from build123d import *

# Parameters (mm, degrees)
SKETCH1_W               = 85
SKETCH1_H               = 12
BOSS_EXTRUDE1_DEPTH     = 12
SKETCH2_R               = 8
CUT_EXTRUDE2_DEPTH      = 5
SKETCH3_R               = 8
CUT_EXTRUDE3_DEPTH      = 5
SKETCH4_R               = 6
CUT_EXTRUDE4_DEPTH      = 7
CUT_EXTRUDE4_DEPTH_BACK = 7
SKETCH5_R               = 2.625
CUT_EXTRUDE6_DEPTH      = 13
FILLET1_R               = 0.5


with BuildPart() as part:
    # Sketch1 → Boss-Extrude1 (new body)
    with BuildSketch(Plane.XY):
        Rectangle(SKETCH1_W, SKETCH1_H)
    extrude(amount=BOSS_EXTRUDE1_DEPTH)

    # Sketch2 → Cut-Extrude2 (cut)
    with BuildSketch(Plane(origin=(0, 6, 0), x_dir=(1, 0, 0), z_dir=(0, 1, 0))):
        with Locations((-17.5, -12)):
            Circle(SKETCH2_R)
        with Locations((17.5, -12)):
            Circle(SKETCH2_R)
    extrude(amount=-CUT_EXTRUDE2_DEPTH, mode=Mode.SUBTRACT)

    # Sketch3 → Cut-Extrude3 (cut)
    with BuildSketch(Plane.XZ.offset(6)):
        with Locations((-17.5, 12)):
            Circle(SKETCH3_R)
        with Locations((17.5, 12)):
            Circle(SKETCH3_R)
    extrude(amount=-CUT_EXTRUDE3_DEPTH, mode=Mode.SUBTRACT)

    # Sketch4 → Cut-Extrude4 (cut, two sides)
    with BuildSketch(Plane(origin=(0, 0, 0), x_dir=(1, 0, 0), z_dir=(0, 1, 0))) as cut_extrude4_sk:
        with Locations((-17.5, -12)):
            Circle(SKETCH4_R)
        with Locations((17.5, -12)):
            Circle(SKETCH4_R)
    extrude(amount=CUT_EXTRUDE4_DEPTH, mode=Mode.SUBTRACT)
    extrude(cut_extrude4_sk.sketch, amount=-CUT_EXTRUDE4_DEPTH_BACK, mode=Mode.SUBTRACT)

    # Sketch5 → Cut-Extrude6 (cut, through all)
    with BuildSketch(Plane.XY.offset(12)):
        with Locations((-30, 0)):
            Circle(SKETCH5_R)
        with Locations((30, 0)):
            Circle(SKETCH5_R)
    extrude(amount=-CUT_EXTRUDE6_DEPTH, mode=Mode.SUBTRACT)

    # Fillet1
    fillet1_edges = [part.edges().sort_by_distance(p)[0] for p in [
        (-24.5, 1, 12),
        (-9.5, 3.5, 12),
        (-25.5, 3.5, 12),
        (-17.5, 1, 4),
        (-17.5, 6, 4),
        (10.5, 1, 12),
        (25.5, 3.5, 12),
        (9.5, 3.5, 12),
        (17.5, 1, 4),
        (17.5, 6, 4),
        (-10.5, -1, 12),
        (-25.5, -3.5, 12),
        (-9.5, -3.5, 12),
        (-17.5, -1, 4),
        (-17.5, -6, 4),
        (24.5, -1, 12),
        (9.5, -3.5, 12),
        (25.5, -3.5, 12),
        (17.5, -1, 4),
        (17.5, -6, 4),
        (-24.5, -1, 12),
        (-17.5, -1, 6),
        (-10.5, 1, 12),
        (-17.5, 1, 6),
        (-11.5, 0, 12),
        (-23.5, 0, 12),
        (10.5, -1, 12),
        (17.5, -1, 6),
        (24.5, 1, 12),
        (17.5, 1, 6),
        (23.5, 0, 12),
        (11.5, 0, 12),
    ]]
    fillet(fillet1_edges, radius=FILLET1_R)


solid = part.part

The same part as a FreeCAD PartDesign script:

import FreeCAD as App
import Part
import Sketcher

V = App.Vector


def edges_at(feature, points):
    """Names of the edges that pass closest to the given points."""
    edges = feature.Shape.Edges
    near = lambda p: min(range(len(edges)), key=lambda i: edges[i].distToShape(Part.Vertex(*p))[0])
    return sorted({f"Edge{near(p) + 1}" for p in points})


def add_polygon(sketch, points):
    """Adds a closed chain of lines whose ends are joined by coincident constraints."""
    first, n = sketch.GeometryCount, len(points)
    for a, b in zip(points, points[1:] + points[:1]):
        sketch.addGeometry(Part.LineSegment(App.Vector(*a, 0), App.Vector(*b, 0)), False)
    for i in range(n):
        sketch.addConstraint(Sketcher.Constraint("Coincident", first + i, 2, first + (i + 1) % n, 1))

doc = App.newDocument("Part")
body = doc.addObject("PartDesign::Body", "Body")

# Sketch on XY plane
sketch1 = body.newObject("Sketcher::SketchObject", "Sketch")
sketch1.AttachmentSupport = (doc.getObject("XY_Plane"), [""])
sketch1.MapMode = "FlatFace"
add_polygon(sketch1, [(-42.5, 6), (-42.5, -6), (42.5, -6), (42.5, 6)])  # lines 0-3
sketch1.addConstraint(Sketcher.Constraint("Vertical", 0))
sketch1.addConstraint(Sketcher.Constraint("Horizontal", 1))
sketch1.addConstraint(Sketcher.Constraint("Vertical", 2))
sketch1.addConstraint(Sketcher.Constraint("Horizontal", 3))
sketch1.addConstraint(Sketcher.Constraint("Symmetric", 0, 2, 2, 2, -1, 1))
sketch1.addConstraint(Sketcher.Constraint("DistanceX", 1, 1, 1, 2, 85.0))
sketch1.addConstraint(Sketcher.Constraint("DistanceY", 0, 2, 0, 1, 12.0))
pad1 = body.newObject("PartDesign::Pad", "Pad")
pad1.Profile = sketch1
pad1.Length = 12

# Sketch on XZ plane
sketch2 = body.newObject("Sketcher::SketchObject", "Sketch001")
sketch2.AttachmentSupport = (doc.getObject("XZ_Plane"), [""])
sketch2.MapMode = "FlatFace"
sketch2.AttachmentOffset = App.Placement(V(0, 0, -6), App.Rotation())
sketch2.addGeometry(Part.Circle(V(-17.5, 12, 0), V(0, 0, 1), 8), False)
sketch2.addGeometry(Part.Circle(V(17.5, 12, 0), V(0, 0, 1), 8), False)
sketch2.addConstraint(Sketcher.Constraint("Equal", 0, 1))
sketch2.addConstraint(Sketcher.Constraint("Symmetric", 0, 3, 1, 3, -2))
sketch2.addConstraint(Sketcher.Constraint("Diameter", 0, 16.0))
sketch2.addConstraint(Sketcher.Constraint("DistanceY", -1, 1, 0, 3, 12.0))
sketch2.addConstraint(Sketcher.Constraint("DistanceX", 0, 3, 1, 3, 35.0))
pocket1 = body.newObject("PartDesign::Pocket", "Pocket")
pocket1.Profile = sketch2
pocket1.Length = 5
pocket1.Reversed = True

# Sketch on XZ plane
sketch3 = body.newObject("Sketcher::SketchObject", "Sketch002")
sketch3.AttachmentSupport = (doc.getObject("XZ_Plane"), [""])
sketch3.MapMode = "FlatFace"
sketch3.AttachmentOffset = App.Placement(V(0, 0, 6), App.Rotation())
sketch3.addGeometry(Part.Circle(V(-17.5, 12, 0), V(0, 0, 1), 8), False)
sketch3.addGeometry(Part.Circle(V(17.5, 12, 0), V(0, 0, 1), 8), False)
sketch3.addConstraint(Sketcher.Constraint("Equal", 0, 1))
sketch3.addConstraint(Sketcher.Constraint("Symmetric", 0, 3, 1, 3, -2))
sketch3.addConstraint(Sketcher.Constraint("Diameter", 0, 16.0))
sketch3.addConstraint(Sketcher.Constraint("DistanceY", -1, 1, 0, 3, 12.0))
sketch3.addConstraint(Sketcher.Constraint("DistanceX", 0, 3, 1, 3, 35.0))
pocket2 = body.newObject("PartDesign::Pocket", "Pocket001")
pocket2.Profile = sketch3
pocket2.Length = 5

# Sketch on XZ plane
sketch4 = body.newObject("Sketcher::SketchObject", "Sketch003")
sketch4.AttachmentSupport = (doc.getObject("XZ_Plane"), [""])
sketch4.MapMode = "FlatFace"
sketch4.addGeometry(Part.Circle(V(-17.5, 12, 0), V(0, 0, 1), 6), False)
sketch4.addGeometry(Part.Circle(V(17.5, 12, 0), V(0, 0, 1), 6), False)
sketch4.addConstraint(Sketcher.Constraint("Equal", 0, 1))
sketch4.addConstraint(Sketcher.Constraint("Symmetric", 0, 3, 1, 3, -2))
sketch4.addConstraint(Sketcher.Constraint("Diameter", 0, 12.0))
sketch4.addConstraint(Sketcher.Constraint("DistanceY", -1, 1, 0, 3, 12.0))
sketch4.addConstraint(Sketcher.Constraint("DistanceX", 0, 3, 1, 3, 35.0))
pocket3 = body.newObject("PartDesign::Pocket", "Pocket002")
pocket3.Profile = sketch4
pocket3.Type = "ThroughAll"
pocket3.Midplane = True

# Sketch on XY plane
sketch5 = body.newObject("Sketcher::SketchObject", "Sketch004")
sketch5.AttachmentSupport = (doc.getObject("XY_Plane"), [""])
sketch5.MapMode = "FlatFace"
sketch5.AttachmentOffset = App.Placement(V(0, 0, 12), App.Rotation())
sketch5.addGeometry(Part.Circle(V(-30, 0, 0), V(0, 0, 1), 2.625), False)
sketch5.addGeometry(Part.Circle(V(30, 0, 0), V(0, 0, 1), 2.625), False)
sketch5.addConstraint(Sketcher.Constraint("Equal", 0, 1))
sketch5.addConstraint(Sketcher.Constraint("Symmetric", 0, 3, 1, 3, -1, 1))
sketch5.addConstraint(Sketcher.Constraint("PointOnObject", 0, 3, -1))
sketch5.addConstraint(Sketcher.Constraint("Diameter", 0, 5.25))
sketch5.addConstraint(Sketcher.Constraint("DistanceX", 0, 3, -1, 1, 30.0))
pocket4 = body.newObject("PartDesign::Pocket", "Pocket003")
pocket4.Profile = sketch5
pocket4.Type = "ThroughAll"
doc.recompute()

fillet = body.newObject("PartDesign::Fillet", "Fillet")
fillet.Base = (pocket4, edges_at(pocket4, [
    (-24.5, 1, 12),
    (-9.5, 3.5, 12),
    (-25.5, 3.5, 12),
    (-17.5, 1, 4),
    (-17.5, 6, 4),
    (10.5, 1, 12),
    (25.5, 3.5, 12),
    (9.5, 3.5, 12),
    (17.5, 1, 4),
    (17.5, 6, 4),
    (-10.5, -1, 12),
    (-25.5, -3.5, 12),
    (-9.5, -3.5, 12),
    (-17.5, -1, 4),
    (-17.5, -6, 4),
    (24.5, -1, 12),
    (9.5, -3.5, 12),
    (25.5, -3.5, 12),
    (17.5, -1, 4),
    (17.5, -6, 4),
    (-24.5, -1, 12),
    (-17.5, -1, 6),
    (-10.5, 1, 12),
    (-17.5, 1, 6),
    (-11.5, -0.5, 12),
    (-23.5, -0.5, 12),
    (10.5, -1, 12),
    (17.5, -1, 6),
    (24.5, 1, 12),
    (17.5, 1, 6),
    (23.5, -0.5, 12),
    (11.5, 0.5, 12),
]))
fillet.Radius = 0.5

doc.recompute()
